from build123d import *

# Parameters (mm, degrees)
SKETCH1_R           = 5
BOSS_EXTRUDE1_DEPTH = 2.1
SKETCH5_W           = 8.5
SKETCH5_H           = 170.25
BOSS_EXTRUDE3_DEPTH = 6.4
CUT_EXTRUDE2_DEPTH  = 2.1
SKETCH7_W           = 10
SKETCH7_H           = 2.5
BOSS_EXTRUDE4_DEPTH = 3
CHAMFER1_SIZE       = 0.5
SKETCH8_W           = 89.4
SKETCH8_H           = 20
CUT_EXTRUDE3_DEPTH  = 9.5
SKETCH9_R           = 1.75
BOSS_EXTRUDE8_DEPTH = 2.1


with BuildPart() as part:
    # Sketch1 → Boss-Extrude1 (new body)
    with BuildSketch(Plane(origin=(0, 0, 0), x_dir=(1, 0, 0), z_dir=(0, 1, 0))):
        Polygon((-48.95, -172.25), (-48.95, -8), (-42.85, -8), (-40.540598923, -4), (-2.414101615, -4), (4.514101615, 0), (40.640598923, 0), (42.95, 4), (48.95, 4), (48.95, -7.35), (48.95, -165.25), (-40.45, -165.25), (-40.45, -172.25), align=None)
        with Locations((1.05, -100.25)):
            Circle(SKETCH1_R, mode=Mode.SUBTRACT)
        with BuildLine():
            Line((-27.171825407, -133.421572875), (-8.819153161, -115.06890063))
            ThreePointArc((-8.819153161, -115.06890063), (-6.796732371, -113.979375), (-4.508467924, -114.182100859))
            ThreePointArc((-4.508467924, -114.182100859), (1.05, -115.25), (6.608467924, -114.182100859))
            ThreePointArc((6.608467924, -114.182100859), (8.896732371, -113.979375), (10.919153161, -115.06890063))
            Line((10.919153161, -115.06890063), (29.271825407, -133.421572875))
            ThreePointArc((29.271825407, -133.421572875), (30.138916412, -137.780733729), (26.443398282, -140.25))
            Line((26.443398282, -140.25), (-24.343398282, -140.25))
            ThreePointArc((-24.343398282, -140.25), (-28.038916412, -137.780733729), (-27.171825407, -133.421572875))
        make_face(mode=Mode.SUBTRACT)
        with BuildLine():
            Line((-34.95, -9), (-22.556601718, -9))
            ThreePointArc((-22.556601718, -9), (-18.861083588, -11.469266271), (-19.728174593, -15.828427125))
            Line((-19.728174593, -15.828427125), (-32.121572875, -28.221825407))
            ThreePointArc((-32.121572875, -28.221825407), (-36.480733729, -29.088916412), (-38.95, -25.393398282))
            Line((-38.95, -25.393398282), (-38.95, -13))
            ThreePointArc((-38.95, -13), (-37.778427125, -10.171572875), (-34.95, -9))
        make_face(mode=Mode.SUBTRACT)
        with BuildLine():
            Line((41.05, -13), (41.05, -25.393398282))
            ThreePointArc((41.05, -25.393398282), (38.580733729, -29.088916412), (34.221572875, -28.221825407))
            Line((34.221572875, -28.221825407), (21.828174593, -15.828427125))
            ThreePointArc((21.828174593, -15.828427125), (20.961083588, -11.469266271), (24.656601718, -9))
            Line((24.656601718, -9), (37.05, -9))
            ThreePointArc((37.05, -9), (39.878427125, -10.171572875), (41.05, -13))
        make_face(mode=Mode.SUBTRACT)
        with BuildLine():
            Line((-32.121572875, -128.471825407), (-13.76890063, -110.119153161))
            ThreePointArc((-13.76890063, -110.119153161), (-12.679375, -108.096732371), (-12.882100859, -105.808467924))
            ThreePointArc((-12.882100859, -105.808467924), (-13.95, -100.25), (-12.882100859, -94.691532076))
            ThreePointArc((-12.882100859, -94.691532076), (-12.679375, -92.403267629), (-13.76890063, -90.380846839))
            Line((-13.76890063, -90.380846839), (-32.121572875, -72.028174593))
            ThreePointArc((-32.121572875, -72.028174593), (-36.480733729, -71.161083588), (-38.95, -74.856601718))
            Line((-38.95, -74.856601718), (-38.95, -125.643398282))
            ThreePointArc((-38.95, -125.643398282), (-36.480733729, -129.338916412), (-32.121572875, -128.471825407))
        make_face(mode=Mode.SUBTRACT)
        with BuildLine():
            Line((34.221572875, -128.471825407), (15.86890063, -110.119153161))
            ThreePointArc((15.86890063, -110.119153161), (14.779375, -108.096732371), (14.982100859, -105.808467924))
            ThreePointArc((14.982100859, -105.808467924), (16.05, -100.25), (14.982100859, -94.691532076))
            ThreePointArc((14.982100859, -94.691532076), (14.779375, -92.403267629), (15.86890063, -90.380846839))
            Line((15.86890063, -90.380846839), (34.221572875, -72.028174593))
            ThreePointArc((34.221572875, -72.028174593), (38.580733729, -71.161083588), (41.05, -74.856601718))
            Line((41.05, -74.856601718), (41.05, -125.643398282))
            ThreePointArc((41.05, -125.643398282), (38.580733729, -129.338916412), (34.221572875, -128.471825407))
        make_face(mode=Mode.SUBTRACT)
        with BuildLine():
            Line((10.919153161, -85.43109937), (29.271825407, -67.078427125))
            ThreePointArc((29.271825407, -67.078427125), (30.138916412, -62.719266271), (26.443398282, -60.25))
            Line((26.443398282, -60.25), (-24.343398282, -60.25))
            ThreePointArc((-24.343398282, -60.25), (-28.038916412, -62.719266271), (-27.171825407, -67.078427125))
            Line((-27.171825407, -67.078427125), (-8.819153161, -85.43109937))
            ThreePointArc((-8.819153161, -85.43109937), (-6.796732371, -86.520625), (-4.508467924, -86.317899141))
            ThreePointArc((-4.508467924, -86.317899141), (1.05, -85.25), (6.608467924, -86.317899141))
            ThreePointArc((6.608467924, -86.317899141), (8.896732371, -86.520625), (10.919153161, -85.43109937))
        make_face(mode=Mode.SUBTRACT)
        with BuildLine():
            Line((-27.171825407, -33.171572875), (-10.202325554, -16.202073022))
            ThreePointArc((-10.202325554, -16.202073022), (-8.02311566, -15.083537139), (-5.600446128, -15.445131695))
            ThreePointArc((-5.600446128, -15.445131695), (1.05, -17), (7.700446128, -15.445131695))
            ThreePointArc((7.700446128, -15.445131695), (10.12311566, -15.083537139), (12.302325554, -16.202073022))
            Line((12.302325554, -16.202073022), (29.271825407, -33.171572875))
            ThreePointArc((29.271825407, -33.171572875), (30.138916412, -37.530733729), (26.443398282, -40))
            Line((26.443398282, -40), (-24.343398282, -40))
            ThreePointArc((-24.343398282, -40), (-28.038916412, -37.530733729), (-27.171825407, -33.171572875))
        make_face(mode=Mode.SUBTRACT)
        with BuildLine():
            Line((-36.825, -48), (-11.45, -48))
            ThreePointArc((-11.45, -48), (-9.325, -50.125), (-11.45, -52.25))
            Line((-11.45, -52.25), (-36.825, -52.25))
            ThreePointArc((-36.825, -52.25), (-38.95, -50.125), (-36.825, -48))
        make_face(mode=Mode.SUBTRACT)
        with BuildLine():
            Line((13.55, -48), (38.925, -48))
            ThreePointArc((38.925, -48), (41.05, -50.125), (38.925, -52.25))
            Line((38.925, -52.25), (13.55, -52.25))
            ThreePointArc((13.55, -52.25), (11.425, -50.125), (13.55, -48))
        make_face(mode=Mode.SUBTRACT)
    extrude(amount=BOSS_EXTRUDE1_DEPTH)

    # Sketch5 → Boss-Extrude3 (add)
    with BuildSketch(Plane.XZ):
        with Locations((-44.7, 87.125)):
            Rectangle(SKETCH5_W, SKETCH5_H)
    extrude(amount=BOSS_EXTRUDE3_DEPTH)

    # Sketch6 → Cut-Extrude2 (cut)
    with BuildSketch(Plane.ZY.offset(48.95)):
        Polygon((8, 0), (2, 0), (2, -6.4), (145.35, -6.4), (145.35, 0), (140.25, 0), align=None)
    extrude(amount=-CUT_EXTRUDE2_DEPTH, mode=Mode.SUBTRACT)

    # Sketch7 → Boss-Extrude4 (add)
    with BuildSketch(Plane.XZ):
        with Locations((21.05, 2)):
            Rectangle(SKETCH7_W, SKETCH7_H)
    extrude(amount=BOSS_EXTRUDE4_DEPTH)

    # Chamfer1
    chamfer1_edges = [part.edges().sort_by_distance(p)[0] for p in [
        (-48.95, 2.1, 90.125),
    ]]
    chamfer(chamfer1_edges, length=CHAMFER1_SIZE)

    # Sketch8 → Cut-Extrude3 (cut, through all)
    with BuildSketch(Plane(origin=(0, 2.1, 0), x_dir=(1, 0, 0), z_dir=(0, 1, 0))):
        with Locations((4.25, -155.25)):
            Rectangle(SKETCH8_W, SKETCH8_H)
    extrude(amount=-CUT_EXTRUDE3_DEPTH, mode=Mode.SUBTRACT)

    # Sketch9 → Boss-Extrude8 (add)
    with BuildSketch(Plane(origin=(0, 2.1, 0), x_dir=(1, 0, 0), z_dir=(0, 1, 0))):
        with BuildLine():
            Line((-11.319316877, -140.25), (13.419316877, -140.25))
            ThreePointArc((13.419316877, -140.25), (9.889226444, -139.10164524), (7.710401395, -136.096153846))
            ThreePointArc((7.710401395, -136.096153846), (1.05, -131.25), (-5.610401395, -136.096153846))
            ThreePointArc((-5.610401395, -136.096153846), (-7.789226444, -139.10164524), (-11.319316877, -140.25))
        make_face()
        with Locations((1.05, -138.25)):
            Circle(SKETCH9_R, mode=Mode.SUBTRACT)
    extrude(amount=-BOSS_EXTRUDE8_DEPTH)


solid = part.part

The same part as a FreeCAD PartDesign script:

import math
import FreeCAD as App
import Part
import Sketcher

V = App.Vector
Q = App.Units.Quantity


def edges_at(feature, points):
    """Names of the edges that pass closest to the given points."""
    edges = feature.Shape.Edges
    near = lambda p: min(range(len(edges)), key=lambda i: edges[i].distToShape(Part.Vertex(*p))[0])
    return sorted({f"Edge{near(p) + 1}" for p in points})

doc = App.newDocument("Part")
params = doc.addObject("Spreadsheet::Sheet", "Params")
for row, (alias, value) in enumerate([
    ("sketch1_diameter", "10 mm"),
    ("sketch1_radius", "4 mm"),
    ("sketch1_radius2", "15 mm"),
    ("sketch1_width", "6 mm"),
    ("sketch1_height", "7 mm"),
    ("pad1_length", "2.1 mm"),
    ("sketch2_width", "8.5 mm"),
    ("sketch2_height", "170.25 mm"),
    ("pad2_length", "6.4 mm"),
    ("sketch3_width", "6.4 mm"),
    ("sketch3_height", "143.35 mm"),
    ("pocket1_length", "2.1 mm"),
    ("sketch4_width", "10 mm"),
    ("sketch4_height", "2.5 mm"),
    ("pad3_length", "3 mm"),
    ("chamfer_size", "0.5 mm"),
    ("sketch5_height", "20 mm"),
    ("sketch5_width", "89.4 mm"),
    ("sketch6_radius", "6 mm"),
    ("sketch6_radius2", "7 mm"),
    ("sketch6_diameter", "3.5 mm"),
    ("pad4_length", "2.1 mm"),
], start=1):
    params.set(f"A{row}", alias)
    params.set(f"B{row}", "=" + value)
    params.setAlias(f"B{row}", alias)

body = doc.addObject("PartDesign::Body", "Body")

sketch1 = body.newObject("Sketcher::SketchObject", "Sketch")
sketch1.AttachmentSupport = (doc.getObject("XZ_Plane"), [""])
sketch1.MapMode = "FlatFace"
sketch1.addGeometry(Part.LineSegment(V(-49, 8, 0), V(-49, 172.2, 0)), False)
sketch1.addGeometry(Part.LineSegment(V(-49, 172.2, 0), V(-40.5, 172.2, 0)), False)
sketch1.addGeometry(Part.LineSegment(V(-40.5, 172.2, 0), V(-40.5, 165.2, 0)), False)
sketch1.addGeometry(Part.LineSegment(V(-40.5, 165.2, 0), V(49, 165.2, 0)), False)
sketch1.addGeometry(Part.LineSegment(V(49, 165.2, 0), V(49, -4, 0)), False)
sketch1.addGeometry(Part.LineSegment(V(49, -4, 0), V(43, -4, 0)), False)
sketch1.addGeometry(Part.LineSegment(V(43, -4, 0), V(40.6, 0, 0)), False)
sketch1.addGeometry(Part.LineSegment(V(40.6, 0, 0), V(4.5, 0, 0)), False)
sketch1.addGeometry(Part.LineSegment(V(4.5, 0, 0), V(-2.4, 4, 0)), False)
sketch1.addGeometry(Part.LineSegment(V(-2.4, 4, 0), V(-40.5, 4, 0)), False)
sketch1.addGeometry(Part.LineSegment(V(-40.5, 4, 0), V(-42.9, 8, 0)), False)
sketch1.addGeometry(Part.LineSegment(V(-42.9, 8, 0), V(-49, 8, 0)), False)
sketch1.addGeometry(Part.LineSegment(V(-27.2, 133.4, 0), V(-8.8, 115.1, 0)), False)
sketch1.addGeometry(Part.ArcOfCircle(Part.Circle(V(-6, 117.9, 0), V(0, 0, 1), 4), math.radians(-135), math.radians(-68)), False)
sketch1.addGeometry(Part.ArcOfCircle(Part.Circle(V(1.1, 100.2, 0), V(0, 0, 1), 15), math.radians(68), math.radians(112)), False)
sketch1.addGeometry(Part.ArcOfCircle(Part.Circle(V(8.1, 117.9, 0), V(0, 0, 1), 4), math.radians(-112), math.radians(-45)), False)
sketch1.addGeometry(Part.LineSegment(V(10.9, 115.1, 0), V(29.3, 133.4, 0)), False)
sketch1.addGeometry(Part.ArcOfCircle(Part.Circle(V(26.4, 136.2, 0), V(0, 0, 1), 4), math.radians(-45), math.radians(90)), False)
sketch1.addGeometry(Part.LineSegment(V(26.4, 140.2, 0), V(-24.3, 140.2, 0)), False)
sketch1.addGeometry(Part.ArcOfCircle(Part.Circle(V(-24.3, 136.2, 0), V(0, 0, 1), 4), math.radians(90), math.radians(225)), False)
sketch1.addGeometry(Part.LineSegment(V(34.2, 128.5, 0), V(15.9, 110.1, 0)), False)
sketch1.addGeometry(Part.ArcOfCircle(Part.Circle(V(18.7, 107.3, 0), V(0, 0, 1), 4), math.radians(135), math.radians(202)), False)
sketch1.addGeometry(Part.ArcOfCircle(Part.Circle(V(1, 100.2, 0), V(0, 0, 1), 15), math.radians(-22), math.radians(22)), False)
sketch1.addGeometry(Part.ArcOfCircle(Part.Circle(V(18.7, 93.2, 0), V(0, 0, 1), 4), math.radians(158), math.radians(225)), False)
sketch1.addGeometry(Part.LineSegment(V(15.9, 90.4, 0), V(34.2, 72, 0)), False)
sketch1.addGeometry(Part.ArcOfCircle(Part.Circle(V(37, 74.9, 0), V(0, 0, 1), 4), math.radians(-135), math.radians(0)), False)
sketch1.addGeometry(Part.LineSegment(V(41, 74.9, 0), V(41, 125.6, 0)), False)
sketch1.addGeometry(Part.ArcOfCircle(Part.Circle(V(37, 125.6, 0), V(0, 0, 1), 4), math.radians(0), math.radians(135)), False)
sketch1.addGeometry(Part.Circle(V(1.1, 100.2, 0), V(0, 0, 1), 5), False)
sketch1.addGeometry(Part.ArcOfCircle(Part.Circle(V(-35, 125.6, 0), V(0, 0, 1), 4), math.radians(45), math.radians(180)), False)
sketch1.addGeometry(Part.LineSegment(V(-39, 125.6, 0), V(-39, 74.9, 0)), False)
sketch1.addGeometry(Part.ArcOfCircle(Part.Circle(V(-35, 74.9, 0), V(0, 0, 1), 4), math.radians(-180), math.radians(-45)), False)
sketch1.addGeometry(Part.LineSegment(V(-32.1, 72, 0), V(-13.8, 90.4, 0)), False)
sketch1.addGeometry(Part.ArcOfCircle(Part.Circle(V(-16.6, 93.2, 0), V(0, 0, 1), 4), math.radians(-45), math.radians(22)), False)
sketch1.addGeometry(Part.ArcOfCircle(Part.Circle(V(1.1, 100.2, 0), V(0, 0, 1), 15), math.radians(158), math.radians(202)), False)
sketch1.addGeometry(Part.ArcOfCircle(Part.Circle(V(-16.6, 107.3, 0), V(0, 0, 1), 4), math.radians(-22), math.radians(45)), False)
sketch1.addGeometry(Part.LineSegment(V(-13.8, 110.1, 0), V(-32.1, 128.5, 0)), False)
sketch1.addGeometry(Part.LineSegment(V(13.6, 48, 0), V(38.9, 48, 0)), False)
sketch1.addGeometry(Part.ArcOfCircle(Part.Circle(V(38.9, 50.1, 0), V(0, 0, 1), 2.1), math.radians(-90), math.radians(90)), False)
sketch1.addGeometry(Part.LineSegment(V(38.9, 52.2, 0), V(13.6, 52.2, 0)), False)
sketch1.addGeometry(Part.ArcOfCircle(Part.Circle(V(13.6, 50.1, 0), V(0, 0, 1), 2.1), math.radians(90), math.radians(270)), False)
sketch1.addGeometry(Part.LineSegment(V(41, 13, 0), V(41, 25.4, 0)), False)
sketch1.addGeometry(Part.ArcOfCircle(Part.Circle(V(37, 25.4, 0), V(0, 0, 1), 4), math.radians(0), math.radians(135)), False)
sketch1.addGeometry(Part.LineSegment(V(34.2, 28.2, 0), V(21.8, 15.8, 0)), False)
sketch1.addGeometry(Part.ArcOfCircle(Part.Circle(V(24.7, 13, 0), V(0, 0, 1), 4), math.radians(135), math.radians(270)), False)
sketch1.addGeometry(Part.LineSegment(V(24.7, 9, 0), V(37, 9, 0)), False)
sketch1.addGeometry(Part.ArcOfCircle(Part.Circle(V(37.1, 13, 0), V(0, 0, 1), 4), math.radians(-90), math.radians(0)), False)
sketch1.addGeometry(Part.ArcOfCircle(Part.Circle(V(8.1, 82.6, 0), V(0, 0, 1), 4), math.radians(45), math.radians(112)), False)
sketch1.addGeometry(Part.ArcOfCircle(Part.Circle(V(1.1, 100.3, 0), V(0, 0, 1), 15), math.radians(-112), math.radians(-68)), False)
sketch1.addGeometry(Part.ArcOfCircle(Part.Circle(V(-6, 82.6, 0), V(0, 0, 1), 4), math.radians(68), math.radians(135)), False)
sketch1.addGeometry(Part.LineSegment(V(-8.8, 85.4, 0), V(-27.2, 67.1, 0)), False)
sketch1.addGeometry(Part.ArcOfCircle(Part.Circle(V(-24.3, 64.2, 0), V(0, 0, 1), 4), math.radians(135), math.radians(270)), False)
sketch1.addGeometry(Part.LineSegment(V(-24.3, 60.2, 0), V(26.4, 60.2, 0)), False)
sketch1.addGeometry(Part.ArcOfCircle(Part.Circle(V(26.4, 64.2, 0), V(0, 0, 1), 4), math.radians(-90), math.radians(45)), False)
sketch1.addGeometry(Part.LineSegment(V(29.3, 67.1, 0), V(10.9, 85.4, 0)), False)
sketch1.addGeometry(Part.LineSegment(V(-36.8, 48, 0), V(-11.4, 48, 0)), False)
sketch1.addGeometry(Part.ArcOfCircle(Part.Circle(V(-11.4, 50.1, 0), V(0, 0, 1), 2.1), math.radians(-90), math.radians(90)), False)
sketch1.addGeometry(Part.LineSegment(V(-11.4, 52.2, 0), V(-36.8, 52.2, 0)), False)
sketch1.addGeometry(Part.ArcOfCircle(Part.Circle(V(-36.8, 50.1, 0), V(0, 0, 1), 2.1), math.radians(90), math.radians(270)), False)
sketch1.addGeometry(Part.LineSegment(V(-27.2, 33.2, 0), V(-10.2, 16.2, 0)), False)
sketch1.addGeometry(Part.ArcOfCircle(Part.Circle(V(-7.4, 19, 0), V(0, 0, 1), 4), math.radians(-135), math.radians(-64)), False)
sketch1.addGeometry(Part.ArcOfCircle(Part.Circle(V(1.1, 2, 0), V(0, 0, 1), 15), math.radians(64), math.radians(116)), False)
sketch1.addGeometry(Part.ArcOfCircle(Part.Circle(V(9.5, 19, 0), V(0, 0, 1), 4), math.radians(-116), math.radians(-45)), False)
sketch1.addGeometry(Part.LineSegment(V(12.3, 16.2, 0), V(29.3, 33.2, 0)), False)
sketch1.addGeometry(Part.ArcOfCircle(Part.Circle(V(26.4, 36, 0), V(0, 0, 1), 4), math.radians(-45), math.radians(90)), False)
sketch1.addGeometry(Part.LineSegment(V(26.4, 40, 0), V(-24.3, 40, 0)), False)
sketch1.addGeometry(Part.ArcOfCircle(Part.Circle(V(-24.3, 36, 0), V(0, 0, 1), 4), math.radians(90), math.radians(225)), False)
sketch1.addGeometry(Part.LineSegment(V(-35, 9, 0), V(-22.6, 9, 0)), False)
sketch1.addGeometry(Part.ArcOfCircle(Part.Circle(V(-22.6, 13, 0), V(0, 0, 1), 4), math.radians(-90), math.radians(45)), False)
sketch1.addGeometry(Part.LineSegment(V(-19.7, 15.8, 0), V(-32.1, 28.2, 0)), False)
sketch1.addGeometry(Part.ArcOfCircle(Part.Circle(V(-35, 25.4, 0), V(0, 0, 1), 4), math.radians(45), math.radians(180)), False)
sketch1.addGeometry(Part.LineSegment(V(-39, 25.4, 0), V(-39, 13, 0)), False)
sketch1.addGeometry(Part.ArcOfCircle(Part.Circle(V(-35, 13, 0), V(0, 0, 1), 4), math.radians(180), math.radians(270)), False)
sketch1.addConstraint(Sketcher.Constraint("Coincident", 0, 2, 1, 1))
sketch1.addConstraint(Sketcher.Constraint("Coincident", 1, 2, 2, 1))
sketch1.addConstraint(Sketcher.Constraint("Coincident", 2, 2, 3, 1))
sketch1.addConstraint(Sketcher.Constraint("Coincident", 3, 2, 4, 1))
sketch1.addConstraint(Sketcher.Constraint("Coincident", 4, 2, 5, 1))
sketch1.addConstraint(Sketcher.Constraint("Coincident", 5, 2, 6, 1))
sketch1.addConstraint(Sketcher.Constraint("Coincident", 6, 2, 7, 1))
sketch1.addConstraint(Sketcher.Constraint("Coincident", 7, 2, 8, 1))
sketch1.addConstraint(Sketcher.Constraint("Coincident", 8, 2, 9, 1))
sketch1.addConstraint(Sketcher.Constraint("Coincident", 9, 2, 10, 1))
sketch1.addConstraint(Sketcher.Constraint("Coincident", 10, 2, 11, 1))
sketch1.addConstraint(Sketcher.Constraint("Coincident", 11, 2, 0, 1))
sketch1.addConstraint(Sketcher.Constraint("Tangent", 12, 2, 13, 1))
sketch1.addConstraint(Sketcher.Constraint("Tangent", 13, 2, 14, 2))
sketch1.addConstraint(Sketcher.Constraint("Tangent", 14, 1, 15, 1))
sketch1.addConstraint(Sketcher.Constraint("Tangent", 15, 2, 16, 1))
sketch1.addConstraint(Sketcher.Constraint("Tangent", 16, 2, 17, 1))
sketch1.addConstraint(Sketcher.Constraint("Tangent", 17, 2, 18, 1))
sketch1.addConstraint(Sketcher.Constraint("Tangent", 18, 2, 19, 1))
sketch1.addConstraint(Sketcher.Constraint("Tangent", 19, 2, 12, 1))
sketch1.addConstraint(Sketcher.Constraint("Tangent", 20, 2, 21, 1))
sketch1.addConstraint(Sketcher.Constraint("Tangent", 21, 2, 22, 2))
sketch1.addConstraint(Sketcher.Constraint("Tangent", 22, 1, 23, 1))
sketch1.addConstraint(Sketcher.Constraint("Tangent", 23, 2, 24, 1))
sketch1.addConstraint(Sketcher.Constraint("Tangent", 24, 2, 25, 1))
sketch1.addConstraint(Sketcher.Constraint("Tangent", 25, 2, 26, 1))
sketch1.addConstraint(Sketcher.Constraint("Tangent", 26, 2, 27, 1))
sketch1.addConstraint(Sketcher.Constraint("Tangent", 27, 2, 20, 1))
sketch1.addConstraint(Sketcher.Constraint("Tangent", 29, 2, 30, 1))
sketch1.addConstraint(Sketcher.Constraint("Tangent", 30, 2, 31, 1))
sketch1.addConstraint(Sketcher.Constraint("Tangent", 31, 2, 32, 1))
sketch1.addConstraint(Sketcher.Constraint("Tangent", 32, 2, 33, 1))
sketch1.addConstraint(Sketcher.Constraint("Tangent", 33, 2, 34, 2))
sketch1.addConstraint(Sketcher.Constraint("Tangent", 34, 1, 35, 1))
sketch1.addConstraint(Sketcher.Constraint("Tangent", 35, 2, 36, 1))
sketch1.addConstraint(Sketcher.Constraint("Tangent", 36, 2, 29, 1))
sketch1.addConstraint(Sketcher.Constraint("Tangent", 37, 2, 38, 1))
sketch1.addConstraint(Sketcher.Constraint("Tangent", 38, 2, 39, 1))
sketch1.addConstraint(Sketcher.Constraint("Tangent", 39, 2, 40, 1))
sketch1.addConstraint(Sketcher.Constraint("Tangent", 40, 2, 37, 1))
sketch1.addConstraint(Sketcher.Constraint("Tangent", 41, 2, 42, 1))
sketch1.addConstraint(Sketcher.Constraint("Tangent", 42, 2, 43, 1))
sketch1.addConstraint(Sketcher.Constraint("Tangent", 43, 2, 44, 1))
sketch1.addConstraint(Sketcher.Constraint("Tangent", 44, 2, 45, 1))
sketch1.addConstraint(Sketcher.Constraint("Tangent", 45, 2, 46, 1))
sketch1.addConstraint(Sketcher.Constraint("Tangent", 46, 2, 41, 1))
sketch1.addConstraint(Sketcher.Constraint("Tangent", 47, 2, 48, 2))
sketch1.addConstraint(Sketcher.Constraint("Tangent", 48, 1, 49, 1))
sketch1.addConstraint(Sketcher.Constraint("Tangent", 49, 2, 50, 1))
sketch1.addConstraint(Sketcher.Constraint("Tangent", 50, 2, 51, 1))
sketch1.addConstraint(Sketcher.Constraint("Tangent", 51, 2, 52, 1))
sketch1.addConstraint(Sketcher.Constraint("Tangent", 52, 2, 53, 1))
sketch1.addConstraint(Sketcher.Constraint("Tangent", 53, 2, 54, 1))
sketch1.addConstraint(Sketcher.Constraint("Tangent", 54, 2, 47, 1))
sketch1.addConstraint(Sketcher.Constraint("Tangent", 55, 2, 56, 1))
sketch1.addConstraint(Sketcher.Constraint("Tangent", 56, 2, 57, 1))
sketch1.addConstraint(Sketcher.Constraint("Tangent", 57, 2, 58, 1))
sketch1.addConstraint(Sketcher.Constraint("Tangent", 58, 2, 55, 1))
sketch1.addConstraint(Sketcher.Constraint("Tangent", 59, 2, 60, 1))
sketch1.addConstraint(Sketcher.Constraint("Tangent", 60, 2, 61, 2))
sketch1.addConstraint(Sketcher.Constraint("Tangent", 61, 1, 62, 1))
sketch1.addConstraint(Sketcher.Constraint("Tangent", 62, 2, 63, 1))
sketch1.addConstraint(Sketcher.Constraint("Tangent", 63, 2, 64, 1))
sketch1.addConstraint(Sketcher.Constraint("Tangent", 64, 2, 65, 1))
sketch1.addConstraint(Sketcher.Constraint("Tangent", 65, 2, 66, 1))
sketch1.addConstraint(Sketcher.Constraint("Tangent", 66, 2, 59, 1))
sketch1.addConstraint(Sketcher.Constraint("Tangent", 67, 2, 68, 1))
sketch1.addConstraint(Sketcher.Constraint("Tangent", 68, 2, 69, 1))
sketch1.addConstraint(Sketcher.Constraint("Tangent", 69, 2, 70, 1))
sketch1.addConstraint(Sketcher.Constraint("Tangent", 70, 2, 71, 1))
sketch1.addConstraint(Sketcher.Constraint("Tangent", 71, 2, 72, 1))
sketch1.addConstraint(Sketcher.Constraint("Tangent", 72, 2, 67, 1))
sketch1.addConstraint(Sketcher.Constraint("Vertical", 0))
sketch1.addConstraint(Sketcher.Constraint("Horizontal", 1))
sketch1.addConstraint(Sketcher.Constraint("Vertical", 2))
sketch1.addConstraint(Sketcher.Constraint("Horizontal", 3))
sketch1.addConstraint(Sketcher.Constraint("Vertical", 4))
sketch1.addConstraint(Sketcher.Constraint("Horizontal", 5))
sketch1.addConstraint(Sketcher.Constraint("Horizontal", 7))
sketch1.addConstraint(Sketcher.Constraint("Horizontal", 9))
sketch1.addConstraint(Sketcher.Constraint("Horizontal", 11))
sketch1.addConstraint(Sketcher.Constraint("Horizontal", 18))
sketch1.addConstraint(Sketcher.Constraint("Vertical", 26))
sketch1.addConstraint(Sketcher.Constraint("Vertical", 30))
sketch1.addConstraint(Sketcher.Constraint("Horizontal", 37))
sketch1.addConstraint(Sketcher.Constraint("Horizontal", 39))
sketch1.addConstraint(Sketcher.Constraint("Vertical", 41))
sketch1.addConstraint(Sketcher.Constraint("Horizontal", 45))
sketch1.addConstraint(Sketcher.Constraint("Horizontal", 52))
sketch1.addConstraint(Sketcher.Constraint("Horizontal", 55))
sketch1.addConstraint(Sketcher.Constraint("Horizontal", 57))
sketch1.addConstraint(Sketcher.Constraint("Horizontal", 65))
sketch1.addConstraint(Sketcher.Constraint("Horizontal", 67))
sketch1.addConstraint(Sketcher.Constraint("Vertical", 71))
sketch1.addConstraint(Sketcher.Constraint("Coincident", 22, 3, 14, 3))
sketch1.addConstraint(Sketcher.Constraint("Coincident", 28, 3, 14, 3))
sketch1.addConstraint(Sketcher.Constraint("Coincident", 34, 3, 14, 3))
sketch1.addConstraint(Sketcher.Constraint("Coincident", 48, 3, 14, 3))
sketch1.addConstraint(Sketcher.Constraint("Equal", 13, 15))
sketch1.addConstraint(Sketcher.Constraint("Equal", 15, 17))
sketch1.addConstraint(Sketcher.Constraint("Equal", 17, 19))
sketch1.addConstraint(Sketcher.Constraint("Equal", 19, 21))
sketch1.addConstraint(Sketcher.Constraint("Equal", 14, 22))
sketch1.addConstraint(Sketcher.Constraint("Equal", 21, 23))
sketch1.addConstraint(Sketcher.Constraint("Equal", 23, 25))
sketch1.addConstraint(Sketcher.Constraint("Equal", 25, 27))
sketch1.addConstraint(Sketcher.Constraint("Equal", 27, 29))
sketch1.addConstraint(Sketcher.Constraint("Equal", 29, 31))
sketch1.addConstraint(Sketcher.Constraint("Equal", 31, 33))
sketch1.addConstraint(Sketcher.Constraint("Equal", 22, 34))
sketch1.addConstraint(Sketcher.Constraint("Equal", 33, 35))
sketch1.addConstraint(Sketcher.Constraint("Equal", 35, 42))
sketch1.addConstraint(Sketcher.Constraint("Equal", 42, 44))
sketch1.addConstraint(Sketcher.Constraint("Equal", 44, 46))
sketch1.addConstraint(Sketcher.Constraint("Equal", 46, 47))
sketch1.addConstraint(Sketcher.Constraint("Equal", 34, 48))
sketch1.addConstraint(Sketcher.Constraint("Equal", 47, 49))
sketch1.addConstraint(Sketcher.Constraint("Equal", 49, 51))
sketch1.addConstraint(Sketcher.Constraint("Equal", 51, 53))
sketch1.addConstraint(Sketcher.Constraint("Equal", 40, 56))
sketch1.addConstraint(Sketcher.Constraint("Equal", 53, 60))
sketch1.addConstraint(Sketcher.Constraint("Equal", 48, 61))
sketch1.addConstraint(Sketcher.Constraint("Equal", 60, 62))
sketch1.addConstraint(Sketcher.Constraint("Equal", 62, 64))
sketch1.addConstraint(Sketcher.Constraint("Equal", 64, 66))
sketch1.addConstraint(Sketcher.Constraint("Equal", 66, 68))
sketch1.addConstraint(Sketcher.Constraint("Equal", 68, 70))
sketch1.addConstraint(Sketcher.Constraint("Equal", 70, 72))
sketch1.addConstraint(Sketcher.Constraint("PointOnObject", 6, 2, -1))
sketch1.addConstraint(Sketcher.Constraint("Parallel", 6, 10))
sketch1.addConstraint(Sketcher.Constraint("Perpendicular", 12, 16))
sketch1.addConstraint(Sketcher.Constraint("Parallel", 16, 20))
sketch1.addConstraint(Sketcher.Constraint("Perpendicular", 20, 24))
sketch1.addConstraint(Sketcher.Constraint("Perpendicular", 24, 32))
sketch1.addConstraint(Sketcher.Constraint("Perpendicular", 32, 36))
sketch1.addConstraint(Sketcher.Constraint("Perpendicular", 36, 43))
sketch1.addConstraint(Sketcher.Constraint("Parallel", 43, 50))
sketch1.addConstraint(Sketcher.Constraint("Perpendicular", 50, 54))
sketch1.addConstraint(Sketcher.Constraint("Parallel", 54, 59))
sketch1.addConstraint(Sketcher.Constraint("Perpendicular", 59, 63))
sketch1.addConstraint(Sketcher.Constraint("Perpendicular", 63, 69))
sketch1.addConstraint(Sketcher.Constraint("Horizontal", 13, 3, 15, 3))
sketch1.addConstraint(Sketcher.Constraint("Horizontal", 27, 3, 29, 3))
sketch1.addConstraint(Sketcher.Constraint("Horizontal", 25, 3, 31, 3))
sketch1.addConstraint(Sketcher.Constraint("Horizontal", 23, 3, 33, 3))
sketch1.addConstraint(Sketcher.Constraint("Horizontal", 21, 3, 35, 3))
sketch1.addConstraint(Sketcher.Constraint("Horizontal", 47, 3, 49, 3))
sketch1.addConstraint(Sketcher.Constraint("Horizontal", 40, 3, 56, 3))
sketch1.addConstraint(Sketcher.Constraint("Horizontal", 60, 3, 62, 3))
sketch1.addConstraint(Sketcher.Constraint("Horizontal", 46, 3, 68, 3))
sketch1.addConstraint(Sketcher.Constraint("Horizontal", 42, 3, 70, 3))
sketch1.addConstraint(Sketcher.Constraint("Vertical", 21, 3, 23, 3))
sketch1.addConstraint(Sketcher.Constraint("Vertical", 27, 3, 42, 3))
sketch1.addConstraint(Sketcher.Constraint("Vertical", 15, 3, 47, 3))
sketch1.addConstraint(Sketcher.Constraint("Vertical", 19, 3, 51, 3))
sketch1.addConstraint(Sketcher.Constraint("Vertical", 48, 3, 61, 3))
sketch1.addConstraint(Sketcher.Constraint("Vertical", 53, 3, 64, 3))
sketch1.addConstraint(Sketcher.Constraint("Vertical", 31, 3, 70, 3))
sketch1.addConstraint(Sketcher.Constraint("Equal", 39, 55))
sketch1.addConstraint(Sketcher.Constraint("Equal", 65, 26))
sketch1.addConstraint(Sketcher.Constraint("Equal", 6, 10))
sketch1.addConstraint(Sketcher.Constraint("Equal", 16, 20))
sketch1.addConstraint(Sketcher.Constraint("Diameter", 28, Q("10 mm")))
sketch1.addConstraint(Sketcher.Constraint("Radius", 13, Q("4 mm")))
sketch1.addConstraint(Sketcher.Constraint("Radius", 14, Q("15 mm")))
sketch1.addConstraint(Sketcher.Constraint("DistanceX", 5, 2, 5, 1, Q("6 mm")))
sketch1.addConstraint(Sketcher.Constraint("DistanceY", 2, 2, 2, 1, Q("7 mm")))
sketch1.addConstraint(Sketcher.Constraint("Angle", 6, Q("120 deg")))
sketch1.addConstraint(Sketcher.Constraint("Angle", 8, Q("150 deg")))
sketch1.addConstraint(Sketcher.Constraint("Distance", 8, Q("8 mm")))
sketch1.addConstraint(Sketcher.Constraint("DistanceX", 1, 1, 1, 2, Q("8.5 mm")))
sketch1.addConstraint(Sketcher.Constraint("DistanceX", 3, 1, 3, 2, Q("89.4 mm")))
sketch1.addConstraint(Sketcher.Constraint("DistanceX", 11, 2, 11, 1, Q("6.1 mm")))
sketch1.addConstraint(Sketcher.Constraint("DistanceY", -1, 1, 44, 3, Q("13 mm")))
sketch1.addConstraint(Sketcher.Constraint("DistanceY", -1, 1, 61, 3, Q("2 mm")))
sketch1.addConstraint(Sketcher.Constraint("DistanceY", -1, 1, 64, 3, Q("36 mm")))
sketch1.addConstraint(Sketcher.Constraint("DistanceY", 4, 2, -1, 1, Q("4 mm")))
sketch1.addConstraint(Sketcher.Constraint("DistanceY", -1, 1, 37, 2, Q("48 mm")))
sketch1.addConstraint(Sketcher.Constraint("Radius", 38, Q("2.125 mm")))
sketch1.addConstraint(Sketcher.Constraint("DistanceY", 0, 1, 0, 2, Q("164.25 mm")))
sketch1.addConstraint(Sketcher.Constraint("DistanceX", 37, 1, 37, 2, Q("25.375 mm")))
sketch1.addConstraint(Sketcher.Constraint("DistanceX", -1, 1, 14, 3, Q("1.05 mm")))
sketch1.addConstraint(Sketcher.Constraint("DistanceY", -1, 1, 14, 3, Q("100.25 mm")))
sketch1.addConstraint(Sketcher.Constraint("DistanceY", -1, 1, 17, 3, Q("136.25 mm")))
sketch1.addConstraint(Sketcher.Constraint("DistanceX", -1, 1, 40, 3, Q("13.55 mm")))
sketch1.addConstraint(Sketcher.Constraint("DistanceX", 56, 3, -1, 1, Q("11.45 mm")))
sketch1.addConstraint(Sketcher.Constraint("DistanceX", 0, 2, -1, 1, Q("48.95 mm")))
sketch1.addConstraint(Sketcher.Constraint("DistanceX", 45, 1, 45, 2, Q("12.393398 mm")))
sketch1.addConstraint(Sketcher.Constraint("DistanceX", -1, 1, 17, 3, Q("26.443398 mm")))
sketch1.addConstraint(Sketcher.Constraint("DistanceX", -1, 1, 7, 2, Q("4.514102 mm")))
sketch1.setExpression("Constraints[162]", "Params.sketch1_diameter")
sketch1.setExpression("Constraints[163]", "Params.sketch1_radius")
sketch1.setExpression("Constraints[164]", "Params.sketch1_radius2")
sketch1.setExpression("Constraints[165]", "Params.sketch1_width")
sketch1.setExpression("Constraints[166]", "Params.sketch1_height")
pad1 = body.newObject("PartDesign::Pad", "Pad")
pad1.Profile = sketch1
pad1.setExpression("Length", "Params.pad1_length")
pad1.Reversed = True

sketch2 = body.newObject("Sketcher::SketchObject", "Sketch001")
sketch2.AttachmentSupport = (doc.getObject("XZ_Plane"), [""])
sketch2.MapMode = "FlatFace"
sketch2.addGeometry(Part.LineSegment(V(-49, 172, 0), V(-49, 2, 0)), False)
sketch2.addGeometry(Part.LineSegment(V(-49, 2, 0), V(-40, 2, 0)), False)
sketch2.addGeometry(Part.LineSegment(V(-40, 2, 0), V(-40, 172, 0)), False)
sketch2.addGeometry(Part.LineSegment(V(-40, 172, 0), V(-49, 172, 0)), False)
sketch2.addConstraint(Sketcher.Constraint("Coincident", 0, 2, 1, 1))
sketch2.addConstraint(Sketcher.Constraint("Coincident", 1, 2, 2, 1))
sketch2.addConstraint(Sketcher.Constraint("Coincident", 2, 2, 3, 1))
sketch2.addConstraint(Sketcher.Constraint("Coincident", 3, 2, 0, 1))
sketch2.addConstraint(Sketcher.Constraint("Vertical", 0))
sketch2.addConstraint(Sketcher.Constraint("Horizontal", 1))
sketch2.addConstraint(Sketcher.Constraint("Vertical", 2))
sketch2.addConstraint(Sketcher.Constraint("Horizontal", 3))
sketch2.addConstraint(Sketcher.Constraint("DistanceX", 1, 1, 1, 2, Q("8.5 mm")))
sketch2.addConstraint(Sketcher.Constraint("DistanceY", -1, 1, 0, 2, Q("2 mm")))
sketch2.addConstraint(Sketcher.Constraint("DistanceY", 0, 2, 0, 1, Q("170.25 mm")))
sketch2.addConstraint(Sketcher.Constraint("DistanceX", 0, 2, -1, 1, Q("48.95 mm")))
sketch2.setExpression("Constraints[8]", "Params.sketch2_width")
sketch2.setExpression("Constraints[10]", "Params.sketch2_height")
pad2 = body.newObject("PartDesign::Pad", "Pad001")
pad2.Profile = sketch2
pad2.setExpression("Length", "Params.pad2_length")

sketch3 = body.newObject("Sketcher::SketchObject", "Sketch002")
sketch3.AttachmentSupport = (doc.getObject("YZ_Plane"), [""])
sketch3.MapMode = "FlatFace"
sketch3.AttachmentOffset = App.Placement(V(0, 0, -48.95), App.Rotation())
sketch3.addGeometry(Part.LineSegment(V(0, 2, 0), V(-6, 2, 0)), False)
sketch3.addGeometry(Part.LineSegment(V(-6, 2, 0), V(-6, 145, 0)), False)
sketch3.addGeometry(Part.LineSegment(V(-6, 145, 0), V(0, 145, 0)), False)
sketch3.addGeometry(Part.LineSegment(V(0, 145, 0), V(0, 2, 0)), False)
sketch3.addConstraint(Sketcher.Constraint("Coincident", 0, 2, 1, 1))
sketch3.addConstraint(Sketcher.Constraint("Coincident", 1, 2, 2, 1))
sketch3.addConstraint(Sketcher.Constraint("Coincident", 2, 2, 3, 1))
sketch3.addConstraint(Sketcher.Constraint("Coincident", 3, 2, 0, 1))
sketch3.addConstraint(Sketcher.Constraint("Horizontal", 0))
sketch3.addConstraint(Sketcher.Constraint("Vertical", 1))
sketch3.addConstraint(Sketcher.Constraint("Horizontal", 2))
sketch3.addConstraint(Sketcher.Constraint("Vertical", 3))
sketch3.addConstraint(Sketcher.Constraint("PointOnObject", 2, 2, -2))
sketch3.addConstraint(Sketcher.Constraint("DistanceX", 0, 2, 0, 1, Q("6.4 mm")))
sketch3.addConstraint(Sketcher.Constraint("DistanceY", -1, 1, 0, 2, Q("2 mm")))
sketch3.addConstraint(Sketcher.Constraint("DistanceY", 1, 1, 1, 2, Q("143.35 mm")))
sketch3.setExpression("Constraints[9]", "Params.sketch3_width")
sketch3.setExpression("Constraints[11]", "Params.sketch3_height")
pocket1 = body.newObject("PartDesign::Pocket", "Pocket")
pocket1.Profile = sketch3
pocket1.setExpression("Length", "Params.pocket1_length")
pocket1.Reversed = True

sketch4 = body.newObject("Sketcher::SketchObject", "Sketch003")
sketch4.AttachmentSupport = (doc.getObject("XZ_Plane"), [""])
sketch4.MapMode = "FlatFace"
sketch4.addGeometry(Part.LineSegment(V(16.1, 3.2, 0), V(16.1, 0.8, 0)), False)
sketch4.addGeometry(Part.LineSegment(V(16.1, 0.8, 0), V(26.1, 0.8, 0)), False)
sketch4.addGeometry(Part.LineSegment(V(26.1, 0.8, 0), V(26.1, 3.2, 0)), False)
sketch4.addGeometry(Part.LineSegment(V(26.1, 3.2, 0), V(16.1, 3.2, 0)), False)
sketch4.addConstraint(Sketcher.Constraint("Coincident", 0, 2, 1, 1))
sketch4.addConstraint(Sketcher.Constraint("Coincident", 1, 2, 2, 1))
sketch4.addConstraint(Sketcher.Constraint("Coincident", 2, 2, 3, 1))
sketch4.addConstraint(Sketcher.Constraint("Coincident", 3, 2, 0, 1))
sketch4.addConstraint(Sketcher.Constraint("Vertical", 0))
sketch4.addConstraint(Sketcher.Constraint("Horizontal", 1))
sketch4.addConstraint(Sketcher.Constraint("Vertical", 2))
sketch4.addConstraint(Sketcher.Constraint("Horizontal", 3))
sketch4.addConstraint(Sketcher.Constraint("DistanceX", 1, 1, 1, 2, Q("10 mm")))
sketch4.addConstraint(Sketcher.Constraint("DistanceY", 0, 2, 0, 1, Q("2.5 mm")))
sketch4.addConstraint(Sketcher.Constraint("DistanceX", -1, 1, 0, 2, Q("16.05 mm")))
sketch4.addConstraint(Sketcher.Constraint("DistanceY", -1, 1, 0, 2, Q("0.75 mm")))
sketch4.setExpression("Constraints[8]", "Params.sketch4_width")
sketch4.setExpression("Constraints[9]", "Params.sketch4_height")
pad3 = body.newObject("PartDesign::Pad", "Pad002")
pad3.Profile = sketch4
pad3.setExpression("Length", "Params.pad3_length")
doc.recompute()

chamfer = body.newObject("PartDesign::Chamfer", "Chamfer")
chamfer.Base = (pad3, edges_at(pad3, [(-48.95, 2.1, 90.125)]))
chamfer.setExpression("Size", "Params.chamfer_size")

sketch5 = body.newObject("Sketcher::SketchObject", "Sketch004")
sketch5.AttachmentSupport = (doc.getObject("XZ_Plane"), [""])
sketch5.MapMode = "FlatFace"
sketch5.AttachmentOffset = App.Placement(V(0, 0, -2.1), App.Rotation())
sketch5.addGeometry(Part.LineSegment(V(-40, 145, 0), V(-40, 165, 0)), False)
sketch5.addGeometry(Part.LineSegment(V(-40, 165, 0), V(49, 165, 0)), False)
sketch5.addGeometry(Part.LineSegment(V(49, 165, 0), V(49, 145, 0)), False)
sketch5.addGeometry(Part.LineSegment(V(49, 145, 0), V(-40, 145, 0)), False)
sketch5.addConstraint(Sketcher.Constraint("Coincident", 0, 2, 1, 1))
sketch5.addConstraint(Sketcher.Constraint("Coincident", 1, 2, 2, 1))
sketch5.addConstraint(Sketcher.Constraint("Coincident", 2, 2, 3, 1))
sketch5.addConstraint(Sketcher.Constraint("Coincident", 3, 2, 0, 1))
sketch5.addConstraint(Sketcher.Constraint("Vertical", 0))
sketch5.addConstraint(Sketcher.Constraint("Horizontal", 1))
sketch5.addConstraint(Sketcher.Constraint("Vertical", 2))
sketch5.addConstraint(Sketcher.Constraint("Horizontal", 3))
sketch5.addConstraint(Sketcher.Constraint("DistanceY", 0, 1, 0, 2, Q("20 mm")))
sketch5.addConstraint(Sketcher.Constraint("DistanceX", 1, 1, 1, 2, Q("89.4 mm")))
sketch5.addConstraint(Sketcher.Constraint("DistanceX", 0, 2, -1, 1, Q("40.45 mm")))
sketch5.addConstraint(Sketcher.Constraint("DistanceY", -1, 1, 0, 2, Q("165.25 mm")))
sketch5.setExpression("Constraints[8]", "Params.sketch5_height")
sketch5.setExpression("Constraints[9]", "Params.sketch5_width")
pocket2 = body.newObject("PartDesign::Pocket", "Pocket001")
pocket2.Profile = sketch5
pocket2.Type = "ThroughAll"
pocket2.Reversed = True

sketch6 = body.newObject("Sketcher::SketchObject", "Sketch005")
sketch6.AttachmentSupport = (doc.getObject("XZ_Plane"), [""])
sketch6.MapMode = "FlatFace"
sketch6.AttachmentOffset = App.Placement(V(0, 0, -2.1), App.Rotation())
sketch6.addGeometry(Part.LineSegment(V(-11.3, 140.2, 0), V(13.4, 140.2, 0)), False)
sketch6.addGeometry(Part.ArcOfCircle(Part.Circle(V(13.4, 134.2, 0), V(0, 0, 1), 6), math.radians(90), math.radians(162)), False)
sketch6.addGeometry(Part.ArcOfCircle(Part.Circle(V(1.1, 138.2, 0), V(0, 0, 1), 7), math.radians(-162), math.radians(-18)), False)
sketch6.addGeometry(Part.ArcOfCircle(Part.Circle(V(-11.3, 134.2, 0), V(0, 0, 1), 6), math.radians(18), math.radians(90)), False)
sketch6.addGeometry(Part.Circle(V(1.1, 138.2, 0), V(0, 0, 1), 1.8), False)
sketch6.addConstraint(Sketcher.Constraint("Tangent", 0, 2, 1, 1))
sketch6.addConstraint(Sketcher.Constraint("Tangent", 1, 2, 2, 2))
sketch6.addConstraint(Sketcher.Constraint("Tangent", 2, 1, 3, 1))
sketch6.addConstraint(Sketcher.Constraint("Tangent", 3, 2, 0, 1))
sketch6.addConstraint(Sketcher.Constraint("Horizontal", 0))
sketch6.addConstraint(Sketcher.Constraint("Coincident", 4, 3, 2, 3))
sketch6.addConstraint(Sketcher.Constraint("Equal", 1, 3))
sketch6.addConstraint(Sketcher.Constraint("Radius", 1, Q("6 mm")))
sketch6.addConstraint(Sketcher.Constraint("Radius", 2, Q("7 mm")))
sketch6.addConstraint(Sketcher.Constraint("Diameter", 4, Q("3.5 mm")))
sketch6.addConstraint(Sketcher.Constraint("DistanceY", 1, 3, 2, 3, Q("4 mm")))
sketch6.addConstraint(Sketcher.Constraint("DistanceY", -1, 1, 1, 3, Q("134.25 mm")))
sketch6.addConstraint(Sketcher.Constraint("DistanceX", -1, 1, 2, 3, Q("1.05 mm")))
sketch6.setExpression("Constraints[7]", "Params.sketch6_radius")
sketch6.setExpression("Constraints[8]", "Params.sketch6_radius2")
sketch6.setExpression("Constraints[9]", "Params.sketch6_diameter")
pad4 = body.newObject("PartDesign::Pad", "Pad003")
pad4.Profile = sketch6
pad4.setExpression("Length", "Params.pad4_length")

doc.recompute()
